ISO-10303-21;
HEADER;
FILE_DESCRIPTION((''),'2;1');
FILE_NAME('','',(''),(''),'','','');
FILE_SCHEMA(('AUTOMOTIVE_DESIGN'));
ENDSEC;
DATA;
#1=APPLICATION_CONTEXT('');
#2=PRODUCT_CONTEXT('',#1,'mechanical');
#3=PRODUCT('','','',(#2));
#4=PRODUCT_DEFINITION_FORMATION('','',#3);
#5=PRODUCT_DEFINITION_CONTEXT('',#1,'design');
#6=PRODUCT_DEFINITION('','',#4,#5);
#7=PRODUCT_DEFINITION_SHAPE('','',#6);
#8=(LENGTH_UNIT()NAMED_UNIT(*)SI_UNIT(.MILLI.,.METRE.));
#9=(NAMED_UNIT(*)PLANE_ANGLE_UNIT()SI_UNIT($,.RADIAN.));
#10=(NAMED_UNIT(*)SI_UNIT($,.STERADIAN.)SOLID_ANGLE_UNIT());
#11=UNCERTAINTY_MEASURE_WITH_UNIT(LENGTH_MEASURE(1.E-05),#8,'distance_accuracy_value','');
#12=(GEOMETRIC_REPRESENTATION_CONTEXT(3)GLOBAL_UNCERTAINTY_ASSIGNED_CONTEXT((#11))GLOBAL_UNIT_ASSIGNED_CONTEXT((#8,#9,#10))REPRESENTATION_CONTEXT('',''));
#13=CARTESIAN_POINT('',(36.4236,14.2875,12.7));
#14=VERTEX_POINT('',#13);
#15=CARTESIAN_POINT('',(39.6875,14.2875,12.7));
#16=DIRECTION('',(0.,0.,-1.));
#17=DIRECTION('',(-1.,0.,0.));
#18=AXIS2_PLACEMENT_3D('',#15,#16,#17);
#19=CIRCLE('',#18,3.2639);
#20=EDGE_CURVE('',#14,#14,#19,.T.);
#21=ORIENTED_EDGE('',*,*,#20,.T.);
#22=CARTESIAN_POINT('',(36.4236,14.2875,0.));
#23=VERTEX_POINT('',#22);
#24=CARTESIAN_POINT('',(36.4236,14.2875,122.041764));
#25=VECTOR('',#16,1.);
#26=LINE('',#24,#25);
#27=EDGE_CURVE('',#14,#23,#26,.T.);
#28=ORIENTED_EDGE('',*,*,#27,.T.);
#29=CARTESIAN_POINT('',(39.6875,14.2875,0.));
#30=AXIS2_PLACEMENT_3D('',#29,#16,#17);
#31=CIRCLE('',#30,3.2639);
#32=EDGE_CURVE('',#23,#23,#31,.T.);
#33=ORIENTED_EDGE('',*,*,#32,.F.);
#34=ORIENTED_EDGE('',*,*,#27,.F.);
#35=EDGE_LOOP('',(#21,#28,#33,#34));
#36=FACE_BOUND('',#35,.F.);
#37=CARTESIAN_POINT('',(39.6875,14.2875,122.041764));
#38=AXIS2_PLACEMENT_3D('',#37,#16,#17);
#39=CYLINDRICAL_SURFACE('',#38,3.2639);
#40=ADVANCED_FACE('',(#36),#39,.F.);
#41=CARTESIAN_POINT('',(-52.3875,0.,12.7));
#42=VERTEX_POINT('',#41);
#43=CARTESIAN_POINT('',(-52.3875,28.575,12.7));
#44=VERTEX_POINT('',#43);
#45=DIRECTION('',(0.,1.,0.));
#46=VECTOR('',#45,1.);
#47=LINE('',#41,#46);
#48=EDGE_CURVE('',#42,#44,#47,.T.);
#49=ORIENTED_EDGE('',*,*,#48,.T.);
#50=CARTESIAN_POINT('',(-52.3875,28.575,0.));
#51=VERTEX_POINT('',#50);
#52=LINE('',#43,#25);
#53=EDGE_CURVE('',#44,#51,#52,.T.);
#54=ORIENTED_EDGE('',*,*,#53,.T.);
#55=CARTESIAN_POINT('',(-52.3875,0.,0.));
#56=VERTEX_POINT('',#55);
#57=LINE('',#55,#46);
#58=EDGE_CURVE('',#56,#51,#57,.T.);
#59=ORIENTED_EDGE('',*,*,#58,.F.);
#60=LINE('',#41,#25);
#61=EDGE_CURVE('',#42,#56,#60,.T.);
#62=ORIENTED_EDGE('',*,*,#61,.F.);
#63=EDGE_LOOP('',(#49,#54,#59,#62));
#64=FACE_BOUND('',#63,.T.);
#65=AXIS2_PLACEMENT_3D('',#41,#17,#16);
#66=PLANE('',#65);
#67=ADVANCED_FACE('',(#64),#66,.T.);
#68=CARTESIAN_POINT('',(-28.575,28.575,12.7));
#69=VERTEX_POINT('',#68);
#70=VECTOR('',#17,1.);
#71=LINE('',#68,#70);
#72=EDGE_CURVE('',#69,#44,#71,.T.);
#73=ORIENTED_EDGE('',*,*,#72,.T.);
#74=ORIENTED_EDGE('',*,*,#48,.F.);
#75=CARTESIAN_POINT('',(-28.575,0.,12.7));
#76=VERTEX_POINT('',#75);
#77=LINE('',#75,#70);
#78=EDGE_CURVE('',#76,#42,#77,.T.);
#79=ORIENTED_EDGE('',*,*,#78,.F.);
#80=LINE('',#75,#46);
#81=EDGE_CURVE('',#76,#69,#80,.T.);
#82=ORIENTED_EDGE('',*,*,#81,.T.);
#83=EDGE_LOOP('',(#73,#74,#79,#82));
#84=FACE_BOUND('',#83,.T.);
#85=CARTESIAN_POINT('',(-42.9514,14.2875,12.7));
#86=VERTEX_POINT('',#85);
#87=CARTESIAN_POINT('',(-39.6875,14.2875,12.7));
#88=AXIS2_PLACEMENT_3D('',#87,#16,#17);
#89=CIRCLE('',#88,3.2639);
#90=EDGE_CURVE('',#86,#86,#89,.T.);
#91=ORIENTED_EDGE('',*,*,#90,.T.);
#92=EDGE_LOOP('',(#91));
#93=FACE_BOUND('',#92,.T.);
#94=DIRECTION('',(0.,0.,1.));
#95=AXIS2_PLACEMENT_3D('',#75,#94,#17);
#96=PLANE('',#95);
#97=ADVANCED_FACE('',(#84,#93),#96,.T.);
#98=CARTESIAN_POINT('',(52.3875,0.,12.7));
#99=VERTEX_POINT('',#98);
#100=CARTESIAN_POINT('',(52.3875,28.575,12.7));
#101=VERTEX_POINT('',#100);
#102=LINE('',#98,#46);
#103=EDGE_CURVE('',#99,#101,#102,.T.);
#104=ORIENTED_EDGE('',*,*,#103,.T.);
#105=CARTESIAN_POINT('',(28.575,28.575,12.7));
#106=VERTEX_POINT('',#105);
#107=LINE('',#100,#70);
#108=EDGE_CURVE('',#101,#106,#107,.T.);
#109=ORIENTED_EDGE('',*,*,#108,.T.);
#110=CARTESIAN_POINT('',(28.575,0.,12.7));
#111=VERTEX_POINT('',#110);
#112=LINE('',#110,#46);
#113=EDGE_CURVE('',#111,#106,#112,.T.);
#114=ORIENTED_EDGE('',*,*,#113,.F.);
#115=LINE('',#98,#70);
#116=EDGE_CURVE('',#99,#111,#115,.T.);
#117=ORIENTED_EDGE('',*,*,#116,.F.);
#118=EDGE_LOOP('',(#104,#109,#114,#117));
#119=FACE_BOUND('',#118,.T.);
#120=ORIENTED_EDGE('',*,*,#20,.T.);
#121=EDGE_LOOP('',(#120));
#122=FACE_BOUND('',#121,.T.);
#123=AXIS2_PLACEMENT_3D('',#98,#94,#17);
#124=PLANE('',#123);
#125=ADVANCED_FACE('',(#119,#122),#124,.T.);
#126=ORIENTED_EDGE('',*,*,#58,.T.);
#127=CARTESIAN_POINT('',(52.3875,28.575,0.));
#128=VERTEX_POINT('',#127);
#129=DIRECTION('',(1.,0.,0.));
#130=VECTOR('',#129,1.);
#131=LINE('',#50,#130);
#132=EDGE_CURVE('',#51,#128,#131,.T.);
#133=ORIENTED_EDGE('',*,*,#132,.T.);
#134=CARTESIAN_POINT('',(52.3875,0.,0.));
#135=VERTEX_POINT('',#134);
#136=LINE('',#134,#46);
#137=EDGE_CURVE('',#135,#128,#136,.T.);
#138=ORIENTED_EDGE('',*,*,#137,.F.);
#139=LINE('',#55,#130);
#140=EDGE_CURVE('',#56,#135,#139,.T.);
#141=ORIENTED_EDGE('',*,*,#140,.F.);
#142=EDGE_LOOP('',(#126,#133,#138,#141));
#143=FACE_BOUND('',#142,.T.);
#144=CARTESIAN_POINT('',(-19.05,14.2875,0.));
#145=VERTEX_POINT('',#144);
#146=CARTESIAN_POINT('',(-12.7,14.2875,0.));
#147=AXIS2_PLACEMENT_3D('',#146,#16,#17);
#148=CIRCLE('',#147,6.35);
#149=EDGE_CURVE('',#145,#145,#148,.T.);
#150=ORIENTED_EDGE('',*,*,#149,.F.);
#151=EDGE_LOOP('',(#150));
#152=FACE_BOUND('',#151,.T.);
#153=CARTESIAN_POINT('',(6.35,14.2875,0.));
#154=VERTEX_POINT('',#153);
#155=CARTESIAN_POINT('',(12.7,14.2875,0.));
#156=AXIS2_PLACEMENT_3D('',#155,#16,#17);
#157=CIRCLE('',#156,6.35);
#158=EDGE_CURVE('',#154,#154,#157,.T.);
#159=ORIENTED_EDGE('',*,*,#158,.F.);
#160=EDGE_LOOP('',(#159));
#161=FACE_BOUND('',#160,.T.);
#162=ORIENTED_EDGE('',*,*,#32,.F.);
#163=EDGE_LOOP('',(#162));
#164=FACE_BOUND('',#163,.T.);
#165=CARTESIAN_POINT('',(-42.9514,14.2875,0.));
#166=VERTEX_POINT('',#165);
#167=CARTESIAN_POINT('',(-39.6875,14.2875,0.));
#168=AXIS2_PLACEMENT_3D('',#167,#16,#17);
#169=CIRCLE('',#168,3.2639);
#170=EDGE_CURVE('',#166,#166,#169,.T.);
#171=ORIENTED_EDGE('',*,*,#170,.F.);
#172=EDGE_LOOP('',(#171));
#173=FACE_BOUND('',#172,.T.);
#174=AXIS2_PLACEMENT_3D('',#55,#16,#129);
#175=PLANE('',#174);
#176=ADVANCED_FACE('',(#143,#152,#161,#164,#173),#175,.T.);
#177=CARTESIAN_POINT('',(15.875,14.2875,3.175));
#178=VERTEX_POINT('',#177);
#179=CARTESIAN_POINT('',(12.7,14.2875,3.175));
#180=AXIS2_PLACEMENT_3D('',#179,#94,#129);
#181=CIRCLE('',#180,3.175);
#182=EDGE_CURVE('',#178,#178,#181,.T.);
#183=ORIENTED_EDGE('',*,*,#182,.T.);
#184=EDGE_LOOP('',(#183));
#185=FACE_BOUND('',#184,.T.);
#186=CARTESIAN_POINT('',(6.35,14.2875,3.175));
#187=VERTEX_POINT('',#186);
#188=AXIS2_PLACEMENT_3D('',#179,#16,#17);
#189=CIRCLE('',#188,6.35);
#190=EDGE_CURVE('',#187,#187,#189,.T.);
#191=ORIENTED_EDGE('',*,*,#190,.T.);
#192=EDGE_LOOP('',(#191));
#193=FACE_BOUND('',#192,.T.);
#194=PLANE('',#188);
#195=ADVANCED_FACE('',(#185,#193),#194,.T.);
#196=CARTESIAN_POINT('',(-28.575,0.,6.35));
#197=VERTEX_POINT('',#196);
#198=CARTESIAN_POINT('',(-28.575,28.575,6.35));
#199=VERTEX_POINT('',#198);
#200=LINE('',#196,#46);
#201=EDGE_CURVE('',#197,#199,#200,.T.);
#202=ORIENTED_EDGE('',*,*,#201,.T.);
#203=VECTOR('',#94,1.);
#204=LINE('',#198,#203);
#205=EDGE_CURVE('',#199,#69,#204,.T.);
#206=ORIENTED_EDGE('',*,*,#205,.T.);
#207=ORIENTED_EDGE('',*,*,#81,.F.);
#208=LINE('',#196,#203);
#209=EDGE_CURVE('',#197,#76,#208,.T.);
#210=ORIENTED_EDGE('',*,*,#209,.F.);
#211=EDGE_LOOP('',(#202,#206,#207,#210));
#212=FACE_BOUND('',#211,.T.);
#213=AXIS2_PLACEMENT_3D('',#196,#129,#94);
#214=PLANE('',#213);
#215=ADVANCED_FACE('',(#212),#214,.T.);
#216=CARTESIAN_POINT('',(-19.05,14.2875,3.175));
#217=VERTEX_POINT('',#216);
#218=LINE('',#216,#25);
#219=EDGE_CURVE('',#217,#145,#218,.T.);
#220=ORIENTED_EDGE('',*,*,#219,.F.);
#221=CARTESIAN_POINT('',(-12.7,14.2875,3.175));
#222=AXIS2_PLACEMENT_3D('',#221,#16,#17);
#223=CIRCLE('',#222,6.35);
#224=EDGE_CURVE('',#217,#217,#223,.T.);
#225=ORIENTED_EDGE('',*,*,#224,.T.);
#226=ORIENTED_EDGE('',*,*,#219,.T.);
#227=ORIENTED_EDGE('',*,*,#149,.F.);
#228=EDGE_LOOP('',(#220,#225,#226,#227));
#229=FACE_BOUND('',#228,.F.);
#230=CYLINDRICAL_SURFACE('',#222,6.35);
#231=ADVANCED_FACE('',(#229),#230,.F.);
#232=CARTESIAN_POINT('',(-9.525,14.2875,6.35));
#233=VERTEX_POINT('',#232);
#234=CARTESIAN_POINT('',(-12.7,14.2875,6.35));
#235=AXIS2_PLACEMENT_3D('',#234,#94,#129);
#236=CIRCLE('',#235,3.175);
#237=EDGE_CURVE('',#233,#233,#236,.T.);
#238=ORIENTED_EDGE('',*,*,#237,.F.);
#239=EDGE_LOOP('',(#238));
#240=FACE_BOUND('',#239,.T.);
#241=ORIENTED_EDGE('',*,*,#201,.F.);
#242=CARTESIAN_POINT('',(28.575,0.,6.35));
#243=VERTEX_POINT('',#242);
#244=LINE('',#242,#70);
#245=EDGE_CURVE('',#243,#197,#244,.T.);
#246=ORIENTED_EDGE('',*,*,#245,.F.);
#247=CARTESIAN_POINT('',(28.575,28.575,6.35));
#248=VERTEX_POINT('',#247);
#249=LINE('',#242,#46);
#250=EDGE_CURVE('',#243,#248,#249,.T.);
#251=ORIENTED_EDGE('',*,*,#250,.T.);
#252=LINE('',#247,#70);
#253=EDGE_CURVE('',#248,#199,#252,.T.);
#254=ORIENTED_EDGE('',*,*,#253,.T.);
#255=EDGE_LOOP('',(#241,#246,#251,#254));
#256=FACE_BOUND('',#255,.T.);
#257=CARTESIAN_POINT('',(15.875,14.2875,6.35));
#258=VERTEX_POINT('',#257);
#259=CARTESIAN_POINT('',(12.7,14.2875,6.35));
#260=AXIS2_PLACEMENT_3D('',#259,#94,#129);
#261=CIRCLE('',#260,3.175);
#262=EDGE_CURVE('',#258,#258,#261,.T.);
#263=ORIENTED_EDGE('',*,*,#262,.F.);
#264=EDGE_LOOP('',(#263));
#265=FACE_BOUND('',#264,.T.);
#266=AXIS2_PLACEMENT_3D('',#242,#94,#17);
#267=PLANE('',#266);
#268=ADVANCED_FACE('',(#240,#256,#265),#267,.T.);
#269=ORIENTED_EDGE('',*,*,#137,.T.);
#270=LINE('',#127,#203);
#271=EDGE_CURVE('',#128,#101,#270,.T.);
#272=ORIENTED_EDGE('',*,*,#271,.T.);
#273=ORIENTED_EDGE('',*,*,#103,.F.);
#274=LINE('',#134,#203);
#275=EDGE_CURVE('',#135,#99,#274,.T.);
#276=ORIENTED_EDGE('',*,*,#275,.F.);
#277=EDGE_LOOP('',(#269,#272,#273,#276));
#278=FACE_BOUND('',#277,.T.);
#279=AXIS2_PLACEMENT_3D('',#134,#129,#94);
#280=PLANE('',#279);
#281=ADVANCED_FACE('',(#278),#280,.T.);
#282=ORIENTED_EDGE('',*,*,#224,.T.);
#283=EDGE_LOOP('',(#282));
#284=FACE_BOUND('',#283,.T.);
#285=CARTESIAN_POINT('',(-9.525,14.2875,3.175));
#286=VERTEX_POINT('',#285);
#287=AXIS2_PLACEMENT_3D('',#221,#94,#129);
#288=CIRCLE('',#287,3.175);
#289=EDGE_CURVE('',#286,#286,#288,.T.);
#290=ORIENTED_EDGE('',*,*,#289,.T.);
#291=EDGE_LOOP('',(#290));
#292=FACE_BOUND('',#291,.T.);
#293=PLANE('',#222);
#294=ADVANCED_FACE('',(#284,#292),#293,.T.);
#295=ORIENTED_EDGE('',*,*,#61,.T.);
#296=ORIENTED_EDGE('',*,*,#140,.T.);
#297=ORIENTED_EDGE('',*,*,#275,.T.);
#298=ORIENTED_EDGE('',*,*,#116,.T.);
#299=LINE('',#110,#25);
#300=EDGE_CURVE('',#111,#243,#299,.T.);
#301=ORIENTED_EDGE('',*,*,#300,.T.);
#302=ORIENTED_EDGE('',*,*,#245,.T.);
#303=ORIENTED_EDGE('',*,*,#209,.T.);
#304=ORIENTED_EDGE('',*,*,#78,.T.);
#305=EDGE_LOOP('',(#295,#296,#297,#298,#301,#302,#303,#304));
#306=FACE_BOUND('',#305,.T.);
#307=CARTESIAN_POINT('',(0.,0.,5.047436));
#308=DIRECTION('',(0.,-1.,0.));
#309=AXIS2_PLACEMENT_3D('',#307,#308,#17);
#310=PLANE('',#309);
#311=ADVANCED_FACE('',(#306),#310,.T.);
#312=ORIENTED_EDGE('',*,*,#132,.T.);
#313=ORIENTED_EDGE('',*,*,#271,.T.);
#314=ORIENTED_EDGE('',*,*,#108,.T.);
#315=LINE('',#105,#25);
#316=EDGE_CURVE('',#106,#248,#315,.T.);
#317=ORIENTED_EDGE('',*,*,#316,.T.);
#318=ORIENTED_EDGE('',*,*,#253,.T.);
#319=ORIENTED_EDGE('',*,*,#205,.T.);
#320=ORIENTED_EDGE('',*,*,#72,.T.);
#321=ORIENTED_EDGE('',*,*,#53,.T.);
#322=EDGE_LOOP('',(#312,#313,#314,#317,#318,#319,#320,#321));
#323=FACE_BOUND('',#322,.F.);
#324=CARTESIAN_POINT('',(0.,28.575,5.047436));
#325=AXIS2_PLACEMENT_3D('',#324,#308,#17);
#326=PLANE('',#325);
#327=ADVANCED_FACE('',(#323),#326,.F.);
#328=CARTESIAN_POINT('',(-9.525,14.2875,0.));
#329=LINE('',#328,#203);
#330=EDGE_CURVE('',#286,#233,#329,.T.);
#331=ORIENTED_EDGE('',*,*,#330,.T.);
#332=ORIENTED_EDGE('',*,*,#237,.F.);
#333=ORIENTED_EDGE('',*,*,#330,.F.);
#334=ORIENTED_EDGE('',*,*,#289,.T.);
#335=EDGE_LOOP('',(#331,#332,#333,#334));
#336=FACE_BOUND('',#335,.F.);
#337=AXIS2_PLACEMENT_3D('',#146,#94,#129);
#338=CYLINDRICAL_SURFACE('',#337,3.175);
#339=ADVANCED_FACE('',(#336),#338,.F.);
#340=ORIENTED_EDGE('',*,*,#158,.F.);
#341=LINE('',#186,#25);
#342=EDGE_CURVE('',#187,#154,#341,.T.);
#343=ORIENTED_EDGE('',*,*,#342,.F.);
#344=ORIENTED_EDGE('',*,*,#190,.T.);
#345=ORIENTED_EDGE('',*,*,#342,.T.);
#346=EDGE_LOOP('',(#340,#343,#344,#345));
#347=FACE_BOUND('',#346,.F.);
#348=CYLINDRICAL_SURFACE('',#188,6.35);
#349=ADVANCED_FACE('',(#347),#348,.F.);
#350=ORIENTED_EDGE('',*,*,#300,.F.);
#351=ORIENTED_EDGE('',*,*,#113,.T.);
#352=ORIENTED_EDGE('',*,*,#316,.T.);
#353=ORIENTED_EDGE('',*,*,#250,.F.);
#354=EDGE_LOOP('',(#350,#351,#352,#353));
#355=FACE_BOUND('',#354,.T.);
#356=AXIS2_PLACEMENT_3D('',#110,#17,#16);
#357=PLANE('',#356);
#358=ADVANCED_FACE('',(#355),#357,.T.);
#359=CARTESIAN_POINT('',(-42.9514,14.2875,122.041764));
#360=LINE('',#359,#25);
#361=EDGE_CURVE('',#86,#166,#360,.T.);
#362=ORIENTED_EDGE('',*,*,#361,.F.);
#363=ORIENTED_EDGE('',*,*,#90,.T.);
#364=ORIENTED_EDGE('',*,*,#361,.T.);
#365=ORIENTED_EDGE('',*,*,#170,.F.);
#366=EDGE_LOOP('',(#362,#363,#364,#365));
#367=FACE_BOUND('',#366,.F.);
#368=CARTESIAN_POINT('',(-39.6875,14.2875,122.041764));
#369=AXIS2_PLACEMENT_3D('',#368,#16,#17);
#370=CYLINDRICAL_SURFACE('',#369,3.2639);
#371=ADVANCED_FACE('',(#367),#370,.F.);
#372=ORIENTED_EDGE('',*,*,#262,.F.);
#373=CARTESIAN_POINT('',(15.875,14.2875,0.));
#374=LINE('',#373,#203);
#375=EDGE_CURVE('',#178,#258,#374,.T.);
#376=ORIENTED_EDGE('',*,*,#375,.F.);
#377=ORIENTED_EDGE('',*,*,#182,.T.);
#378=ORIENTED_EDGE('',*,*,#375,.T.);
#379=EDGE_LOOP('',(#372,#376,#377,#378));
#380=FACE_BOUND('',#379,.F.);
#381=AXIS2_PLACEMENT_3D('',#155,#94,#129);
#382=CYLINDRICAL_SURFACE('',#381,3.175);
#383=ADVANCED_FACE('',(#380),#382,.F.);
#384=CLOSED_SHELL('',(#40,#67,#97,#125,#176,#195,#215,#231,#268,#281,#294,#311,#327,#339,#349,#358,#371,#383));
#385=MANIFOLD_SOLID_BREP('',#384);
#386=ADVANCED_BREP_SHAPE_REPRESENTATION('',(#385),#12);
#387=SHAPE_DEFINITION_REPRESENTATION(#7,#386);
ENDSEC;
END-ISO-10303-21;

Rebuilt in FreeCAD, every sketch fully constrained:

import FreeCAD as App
import Part
import Sketcher
Q = App.Units.Quantity


def add_polygon(sketch, points):
    """Adds a closed chain of lines whose ends are joined by coincident constraints."""
    first, n = sketch.GeometryCount, len(points)
    for a, b in zip(points, points[1:] + points[:1]):
        sketch.addGeometry(Part.LineSegment(App.Vector(*a, 0), App.Vector(*b, 0)), False)
    for i in range(n):
        sketch.addConstraint(Sketcher.Constraint("Coincident", first + i, 2, first + (i + 1) % n, 1))

doc = App.newDocument("Part")
body = doc.addObject("PartDesign::Body", "Body")

sketch1 = body.newObject("Sketcher::SketchObject", "Sketch")
sketch1.AttachmentSupport = (doc.getObject("XZ_Plane"), [""])
sketch1.MapMode = "FlatFace"
add_polygon(sketch1, [(52, 0), (-52, 0), (-52, 13), (-29, 13), (-29, 6), (29, 6), (29, 13), (52, 13)])
sketch1.addConstraint([
    Sketcher.Constraint("Horizontal", 0),
    Sketcher.Constraint("Vertical", 1),
    Sketcher.Constraint("Horizontal", 2),
    Sketcher.Constraint("Vertical", 3),
    Sketcher.Constraint("Horizontal", 4),
    Sketcher.Constraint("Vertical", 5),
    Sketcher.Constraint("Horizontal", 6),
    Sketcher.Constraint("Vertical", 7),
    Sketcher.Constraint("Symmetric", 0, 2, 7, 2, -1, 1),
    Sketcher.Constraint("Symmetric", 2, 2, 5, 2, -2),
    Sketcher.Constraint("DistanceY", 1, 1, 1, 2, Q("0.5 in")),
    Sketcher.Constraint("DistanceX", 4, 1, 4, 2, Q("2.25 in")),
    Sketcher.Constraint("DistanceY", 3, 2, 3, 1, Q("0.25 in")),
    Sketcher.Constraint("DistanceX", 0, 2, 0, 1, Q("4.125 in")),
])
pad1 = body.newObject("PartDesign::Pad", "Pad")
pad1.Profile = sketch1
pad1.Length = Q("1.125 in")
pad1.Reversed = True

sketch2 = body.newObject("Sketcher::SketchObject", "Sketch001")
sketch2.AttachmentSupport = (doc.getObject("XY_Plane"), [""])
sketch2.MapMode = "FlatFace"
sketch2.addGeometry([
    Part.Circle(App.Vector(12.7, 14.3, 0), App.Vector(0, 0, 1), 3.2),
    Part.Circle(App.Vector(-12.7, 14.3, 0), App.Vector(0, 0, 1), 3.2),
], False)
sketch2.addConstraint([
    Sketcher.Constraint("Equal", 0, 1),
    Sketcher.Constraint("Symmetric", 0, 3, 1, 3, -2),
    Sketcher.Constraint("Diameter", 0, Q("0.25 in")),
    Sketcher.Constraint("DistanceX", 1, 3, 0, 3, Q("1 in")),
    Sketcher.Constraint("DistanceY", -1, 1, 0, 3, Q("0.5625 in")),
])
doc.recompute()
hole = body.newObject("PartDesign::Hole", "Hole")
hole.Profile = sketch2
hole.ThreadType = "None"
hole.Diameter = Q("0.25 in")
hole.DepthType = "Dimension"
hole.Depth = Q("0.5 in")
hole.DrillPoint = "Angled"
hole.DrillPointAngle = 118
hole.HoleCutType = "Counterbore"
hole.HoleCutDiameter = Q("0.5 in")
hole.HoleCutDepth = Q("0.125 in")
hole.Reversed = True

sketch3 = body.newObject("Sketcher::SketchObject", "Sketch002")
sketch3.AttachmentSupport = (doc.getObject("XY_Plane"), [""])
sketch3.MapMode = "FlatFace"
sketch3.AttachmentOffset = App.Placement(App.Vector(0, 0, 0.5 * 25.4), App.Rotation())
sketch3.addGeometry([
    Part.Circle(App.Vector(-39.7, 14.3, 0), App.Vector(0, 0, 1), 3.3),
    Part.Circle(App.Vector(39.7, 14.3, 0), App.Vector(0, 0, 1), 3.3),
], False)
sketch3.addConstraint([
    Sketcher.Constraint("Equal", 0, 1),
    Sketcher.Constraint("Symmetric", 0, 3, 1, 3, -2),
    Sketcher.Constraint("Diameter", 0, Q("0.257 in")),
    Sketcher.Constraint("DistanceX", 0, 3, -1, 1, Q("1.5625 in")),
    Sketcher.Constraint("DistanceY", -1, 1, 0, 3, Q("0.5625 in")),
])
doc.recompute()
hole2 = body.newObject("PartDesign::Hole", "Hole001")
hole2.Profile = sketch3
hole2.ThreadType = "None"
hole2.Diameter = Q("0.257 in")
hole2.DepthType = "ThroughAll"

doc.recompute()
